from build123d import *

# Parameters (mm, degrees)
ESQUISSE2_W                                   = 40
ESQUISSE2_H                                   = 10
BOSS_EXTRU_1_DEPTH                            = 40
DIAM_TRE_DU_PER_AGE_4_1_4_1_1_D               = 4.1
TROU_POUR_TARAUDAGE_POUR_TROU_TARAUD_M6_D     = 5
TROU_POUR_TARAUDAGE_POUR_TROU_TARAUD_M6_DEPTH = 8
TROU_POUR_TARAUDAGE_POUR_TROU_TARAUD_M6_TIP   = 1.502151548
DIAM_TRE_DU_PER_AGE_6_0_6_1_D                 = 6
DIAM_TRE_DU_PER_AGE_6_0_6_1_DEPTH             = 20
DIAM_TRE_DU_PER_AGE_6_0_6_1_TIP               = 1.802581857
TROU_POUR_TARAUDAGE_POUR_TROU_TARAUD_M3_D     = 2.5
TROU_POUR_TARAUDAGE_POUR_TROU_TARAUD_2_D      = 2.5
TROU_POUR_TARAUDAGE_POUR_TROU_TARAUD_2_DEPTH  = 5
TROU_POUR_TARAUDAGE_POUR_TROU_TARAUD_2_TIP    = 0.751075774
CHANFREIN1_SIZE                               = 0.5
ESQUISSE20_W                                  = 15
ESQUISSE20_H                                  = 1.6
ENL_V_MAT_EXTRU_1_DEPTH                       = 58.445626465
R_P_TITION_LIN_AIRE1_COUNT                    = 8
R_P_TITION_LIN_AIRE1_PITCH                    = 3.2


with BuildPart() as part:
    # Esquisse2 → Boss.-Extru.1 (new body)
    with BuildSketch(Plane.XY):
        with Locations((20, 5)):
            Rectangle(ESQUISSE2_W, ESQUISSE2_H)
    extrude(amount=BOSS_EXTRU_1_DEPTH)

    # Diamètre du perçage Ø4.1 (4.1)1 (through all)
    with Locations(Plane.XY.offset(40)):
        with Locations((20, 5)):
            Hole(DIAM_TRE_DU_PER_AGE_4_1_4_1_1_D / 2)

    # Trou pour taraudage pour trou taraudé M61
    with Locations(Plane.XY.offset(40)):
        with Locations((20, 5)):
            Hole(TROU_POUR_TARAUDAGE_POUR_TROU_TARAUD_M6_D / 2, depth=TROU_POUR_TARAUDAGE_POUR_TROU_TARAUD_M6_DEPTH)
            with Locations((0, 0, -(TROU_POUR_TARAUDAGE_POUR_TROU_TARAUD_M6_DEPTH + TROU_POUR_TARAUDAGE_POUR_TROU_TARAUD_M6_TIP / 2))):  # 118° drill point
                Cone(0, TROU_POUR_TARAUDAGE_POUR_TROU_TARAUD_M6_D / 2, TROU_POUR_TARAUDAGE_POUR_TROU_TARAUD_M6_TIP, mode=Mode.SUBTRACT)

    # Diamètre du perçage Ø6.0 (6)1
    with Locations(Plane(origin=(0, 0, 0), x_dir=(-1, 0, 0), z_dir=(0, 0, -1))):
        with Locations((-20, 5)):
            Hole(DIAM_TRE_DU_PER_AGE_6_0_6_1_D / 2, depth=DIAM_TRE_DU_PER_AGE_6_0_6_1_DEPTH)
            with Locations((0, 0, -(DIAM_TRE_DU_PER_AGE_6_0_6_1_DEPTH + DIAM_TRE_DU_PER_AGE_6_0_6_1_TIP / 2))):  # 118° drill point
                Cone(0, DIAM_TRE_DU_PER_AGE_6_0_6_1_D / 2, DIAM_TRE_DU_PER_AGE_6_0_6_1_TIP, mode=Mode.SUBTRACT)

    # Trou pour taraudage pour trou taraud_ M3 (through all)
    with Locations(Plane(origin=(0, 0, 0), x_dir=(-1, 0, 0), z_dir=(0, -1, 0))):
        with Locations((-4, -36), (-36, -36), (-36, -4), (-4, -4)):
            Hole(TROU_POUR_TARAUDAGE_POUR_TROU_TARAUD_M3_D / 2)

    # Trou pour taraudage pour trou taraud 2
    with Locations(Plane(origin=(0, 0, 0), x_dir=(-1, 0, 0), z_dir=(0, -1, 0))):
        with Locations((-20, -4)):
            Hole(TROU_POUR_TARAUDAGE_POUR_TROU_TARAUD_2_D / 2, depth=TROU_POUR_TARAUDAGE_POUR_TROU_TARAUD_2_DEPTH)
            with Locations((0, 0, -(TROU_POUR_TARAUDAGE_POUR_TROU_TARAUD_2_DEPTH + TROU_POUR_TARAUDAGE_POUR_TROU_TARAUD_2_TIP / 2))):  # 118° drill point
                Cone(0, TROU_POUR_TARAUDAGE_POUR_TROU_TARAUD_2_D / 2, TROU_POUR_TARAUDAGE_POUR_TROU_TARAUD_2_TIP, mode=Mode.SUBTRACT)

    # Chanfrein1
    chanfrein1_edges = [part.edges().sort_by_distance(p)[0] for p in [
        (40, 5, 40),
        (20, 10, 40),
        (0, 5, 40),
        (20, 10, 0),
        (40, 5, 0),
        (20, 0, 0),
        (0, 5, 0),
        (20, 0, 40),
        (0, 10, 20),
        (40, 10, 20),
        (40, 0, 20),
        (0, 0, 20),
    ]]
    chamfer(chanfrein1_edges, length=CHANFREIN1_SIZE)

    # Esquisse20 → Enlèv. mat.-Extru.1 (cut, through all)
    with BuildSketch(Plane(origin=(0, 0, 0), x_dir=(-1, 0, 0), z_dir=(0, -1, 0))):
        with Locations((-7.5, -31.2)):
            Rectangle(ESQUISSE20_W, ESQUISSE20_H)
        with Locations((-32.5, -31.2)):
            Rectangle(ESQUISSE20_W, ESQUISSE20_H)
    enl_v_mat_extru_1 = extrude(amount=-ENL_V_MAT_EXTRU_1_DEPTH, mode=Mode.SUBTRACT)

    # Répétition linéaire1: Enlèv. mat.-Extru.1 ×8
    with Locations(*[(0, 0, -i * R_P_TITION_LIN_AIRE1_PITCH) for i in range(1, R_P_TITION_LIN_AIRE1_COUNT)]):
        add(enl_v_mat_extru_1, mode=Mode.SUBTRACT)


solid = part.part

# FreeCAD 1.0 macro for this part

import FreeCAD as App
import Part
import Sketcher
Q = App.Units.Quantity


def edges_at(feature, points):
    """Names of the edges that pass closest to the given points."""
    edges = feature.Shape.Edges
    near = lambda p: min(range(len(edges)), key=lambda i: edges[i].distToShape(Part.Vertex(*p))[0])
    return sorted({f"Edge{near(p) + 1}" for p in points})

doc = App.newDocument("Part")
body = doc.addObject("PartDesign::Body", "Body")

# Sketch on XY plane
sketch1 = body.newObject("Sketcher::SketchObject", "Sketch")
sketch1.AttachmentSupport = (doc.getObject("XY_Plane"), [""])
sketch1.MapMode = "FlatFace"
sketch1.addGeometry(Part.LineSegment(App.Vector(0, 10, 0), App.Vector(0, 0, 0)), False)
sketch1.addGeometry(Part.LineSegment(App.Vector(0, 0, 0), App.Vector(40, 0, 0)), False)
sketch1.addGeometry(Part.LineSegment(App.Vector(40, 0, 0), App.Vector(40, 10, 0)), False)
sketch1.addGeometry(Part.LineSegment(App.Vector(40, 10, 0), App.Vector(0, 10, 0)), False)
sketch1.addConstraint(Sketcher.Constraint("Coincident", 0, 2, 1, 1))
sketch1.addConstraint(Sketcher.Constraint("Coincident", 1, 2, 2, 1))
sketch1.addConstraint(Sketcher.Constraint("Coincident", 2, 2, 3, 1))
sketch1.addConstraint(Sketcher.Constraint("Coincident", 3, 2, 0, 1))
sketch1.addConstraint(Sketcher.Constraint("Vertical", 0))
sketch1.addConstraint(Sketcher.Constraint("Horizontal", 1))
sketch1.addConstraint(Sketcher.Constraint("Vertical", 2))
sketch1.addConstraint(Sketcher.Constraint("Horizontal", 3))
sketch1.addConstraint(Sketcher.Constraint("Coincident", 0, 2, -1, 1))
sketch1.addConstraint(Sketcher.Constraint("DistanceX", 1, 1, 1, 2, Q("40 mm")))
sketch1.addConstraint(Sketcher.Constraint("DistanceY", 0, 2, 0, 1, Q("10 mm")))
pad1 = body.newObject("PartDesign::Pad", "Pad")
pad1.Profile = sketch1
pad1.Length = 40

# Sketch on XY plane
sketch2 = body.newObject("Sketcher::SketchObject", "Sketch001")
sketch2.AttachmentSupport = (doc.getObject("XY_Plane"), [""])
sketch2.MapMode = "FlatFace"
sketch2.AttachmentOffset = App.Placement(App.Vector(0, 0, 40), App.Rotation())
sketch2.addGeometry(Part.Circle(App.Vector(20, 5, 0), App.Vector(0, 0, 1), 2.05), False)
sketch2.addConstraint(Sketcher.Constraint("Diameter", 0, Q("4.1 mm")))
sketch2.addConstraint(Sketcher.Constraint("DistanceX", -1, 1, 0, 3, Q("20 mm")))
sketch2.addConstraint(Sketcher.Constraint("DistanceY", -1, 1, 0, 3, Q("5 mm")))
doc.recompute()
hole = body.newObject("PartDesign::Hole", "Hole")
hole.Profile = sketch2
hole.ThreadType = "None"
hole.Diameter = 4.1
hole.DepthType = "ThroughAll"

# Sketch on XY plane
sketch3 = body.newObject("Sketcher::SketchObject", "Sketch002")
sketch3.AttachmentSupport = (doc.getObject("XY_Plane"), [""])
sketch3.MapMode = "FlatFace"
sketch3.AttachmentOffset = App.Placement(App.Vector(0, 0, 40), App.Rotation())
sketch3.addGeometry(Part.Circle(App.Vector(20, 5, 0), App.Vector(0, 0, 1), 2.5), False)
sketch3.addConstraint(Sketcher.Constraint("Diameter", 0, Q("5 mm")))
sketch3.addConstraint(Sketcher.Constraint("DistanceX", -1, 1, 0, 3, Q("20 mm")))
sketch3.addConstraint(Sketcher.Constraint("DistanceY", -1, 1, 0, 3, Q("5 mm")))
doc.recompute()
hole2 = body.newObject("PartDesign::Hole", "Hole001")
hole2.Profile = sketch3
hole2.ThreadType = "None"
hole2.Diameter = 5
hole2.DepthType = "Dimension"
hole2.Depth = 8
hole2.DrillPoint = "Angled"
hole2.DrillPointAngle = 118

# Sketch on XY plane
sketch4 = body.newObject("Sketcher::SketchObject", "Sketch003")
sketch4.AttachmentSupport = (doc.getObject("XY_Plane"), [""])
sketch4.MapMode = "FlatFace"
sketch4.addGeometry(Part.Circle(App.Vector(20, 5, 0), App.Vector(0, 0, 1), 3), False)
sketch4.addConstraint(Sketcher.Constraint("Diameter", 0, Q("6 mm")))
sketch4.addConstraint(Sketcher.Constraint("DistanceX", -1, 1, 0, 3, Q("20 mm")))
sketch4.addConstraint(Sketcher.Constraint("DistanceY", -1, 1, 0, 3, Q("5 mm")))
doc.recompute()
hole3 = body.newObject("PartDesign::Hole", "Hole002")
hole3.Profile = sketch4
hole3.ThreadType = "None"
hole3.Diameter = 6
hole3.DepthType = "Dimension"
hole3.Depth = 20
hole3.DrillPoint = "Angled"
hole3.DrillPointAngle = 118
hole3.Reversed = True

# Sketch on XZ plane
sketch5 = body.newObject("Sketcher::SketchObject", "Sketch004")
sketch5.AttachmentSupport = (doc.getObject("XZ_Plane"), [""])
sketch5.MapMode = "FlatFace"
sketch5.addGeometry(Part.Circle(App.Vector(4, 36, 0), App.Vector(0, 0, 1), 1.25), False)
sketch5.addGeometry(Part.Circle(App.Vector(36, 36, 0), App.Vector(0, 0, 1), 1.25), False)
sketch5.addGeometry(Part.Circle(App.Vector(36, 4, 0), App.Vector(0, 0, 1), 1.25), False)
sketch5.addGeometry(Part.Circle(App.Vector(4, 4, 0), App.Vector(0, 0, 1), 1.25), False)
sketch5.addConstraint(Sketcher.Constraint("Equal", 0, 1))
sketch5.addConstraint(Sketcher.Constraint("Equal", 1, 2))
sketch5.addConstraint(Sketcher.Constraint("Equal", 2, 3))
sketch5.addConstraint(Sketcher.Constraint("Horizontal", 0, 3, 1, 3))
sketch5.addConstraint(Sketcher.Constraint("Horizontal", 2, 3, 3, 3))
sketch5.addConstraint(Sketcher.Constraint("Vertical", 1, 3, 2, 3))
sketch5.addConstraint(Sketcher.Constraint("Vertical", 0, 3, 3, 3))
sketch5.addConstraint(Sketcher.Constraint("Diameter", 0, Q("2.5 mm")))
sketch5.addConstraint(Sketcher.Constraint("DistanceX", -1, 1, 0, 3, Q("4 mm")))
sketch5.addConstraint(Sketcher.Constraint("DistanceY", -1, 1, 0, 3, Q("36 mm")))
sketch5.addConstraint(Sketcher.Constraint("DistanceX", -1, 1, 1, 3, Q("36 mm")))
sketch5.addConstraint(Sketcher.Constraint("DistanceY", -1, 1, 2, 3, Q("4 mm")))
doc.recompute()
hole4 = body.newObject("PartDesign::Hole", "Hole003")
hole4.Profile = sketch5
hole4.ThreadType = "None"
hole4.Diameter = 2.5
hole4.DepthType = "ThroughAll"

# Sketch on XZ plane
sketch6 = body.newObject("Sketcher::SketchObject", "Sketch005")
sketch6.AttachmentSupport = (doc.getObject("XZ_Plane"), [""])
sketch6.MapMode = "FlatFace"
sketch6.addGeometry(Part.Circle(App.Vector(20, 4, 0), App.Vector(0, 0, 1), 1.25), False)
sketch6.addConstraint(Sketcher.Constraint("Diameter", 0, Q("2.5 mm")))
sketch6.addConstraint(Sketcher.Constraint("DistanceX", -1, 1, 0, 3, Q("20 mm")))
sketch6.addConstraint(Sketcher.Constraint("DistanceY", -1, 1, 0, 3, Q("4 mm")))
doc.recompute()
hole5 = body.newObject("PartDesign::Hole", "Hole004")
hole5.Profile = sketch6
hole5.ThreadType = "None"
hole5.Diameter = 2.5
hole5.DepthType = "Dimension"
hole5.Depth = 5
hole5.DrillPoint = "Angled"
hole5.DrillPointAngle = 118
doc.recompute()

chamfer = body.newObject("PartDesign::Chamfer", "Chamfer")
chamfer.Base = (hole5, edges_at(hole5, [
    (40, 5, 40),
    (20, 10, 40),
    (0, 5, 40),
    (20, 10, 0),
    (40, 5, 0),
    (20, 0, 0),
    (0, 5, 0),
    (20, 0, 40),
    (0, 10, 20),
    (40, 10, 20),
    (40, 0, 20),
    (0, 0, 20),
]))
chamfer.Size = 0.5

# Sketch on XZ plane
sketch7 = body.newObject("Sketcher::SketchObject", "Sketch006")
sketch7.AttachmentSupport = (doc.getObject("XZ_Plane"), [""])
sketch7.MapMode = "FlatFace"
sketch7.addGeometry(Part.LineSegment(App.Vector(15, 30.4, 0), App.Vector(15, 32, 0)), False)
sketch7.addGeometry(Part.LineSegment(App.Vector(15, 32, 0), App.Vector(0, 32, 0)), False)
sketch7.addGeometry(Part.LineSegment(App.Vector(0, 32, 0), App.Vector(0, 30.4, 0)), False)
sketch7.addGeometry(Part.LineSegment(App.Vector(0, 30.4, 0), App.Vector(15, 30.4, 0)), False)
sketch7.addGeometry(Part.LineSegment(App.Vector(40, 30.4, 0), App.Vector(40, 32, 0)), False)
sketch7.addGeometry(Part.LineSegment(App.Vector(40, 32, 0), App.Vector(25, 32, 0)), False)
sketch7.addGeometry(Part.LineSegment(App.Vector(25, 32, 0), App.Vector(25, 30.4, 0)), False)
sketch7.addGeometry(Part.LineSegment(App.Vector(25, 30.4, 0), App.Vector(40, 30.4, 0)), False)
sketch7.addConstraint(Sketcher.Constraint("Coincident", 0, 2, 1, 1))
sketch7.addConstraint(Sketcher.Constraint("Coincident", 1, 2, 2, 1))
sketch7.addConstraint(Sketcher.Constraint("Coincident", 2, 2, 3, 1))
sketch7.addConstraint(Sketcher.Constraint("Coincident", 3, 2, 0, 1))
sketch7.addConstraint(Sketcher.Constraint("Coincident", 4, 2, 5, 1))
sketch7.addConstraint(Sketcher.Constraint("Coincident", 5, 2, 6, 1))
sketch7.addConstraint(Sketcher.Constraint("Coincident", 6, 2, 7, 1))
sketch7.addConstraint(Sketcher.Constraint("Coincident", 7, 2, 4, 1))
sketch7.addConstraint(Sketcher.Constraint("Vertical", 0))
sketch7.addConstraint(Sketcher.Constraint("Horizontal", 1))
sketch7.addConstraint(Sketcher.Constraint("Vertical", 2))
sketch7.addConstraint(Sketcher.Constraint("Horizontal", 3))
sketch7.addConstraint(Sketcher.Constraint("Vertical", 4))
sketch7.addConstraint(Sketcher.Constraint("Horizontal", 5))
sketch7.addConstraint(Sketcher.Constraint("Vertical", 6))
sketch7.addConstraint(Sketcher.Constraint("Horizontal", 7))
sketch7.addConstraint(Sketcher.Constraint("PointOnObject", 1, 2, -2))
sketch7.addConstraint(Sketcher.Constraint("Horizontal", 1, 2, 4, 2))
sketch7.addConstraint(Sketcher.Constraint("Horizontal", 3, 2, 6, 2))
sketch7.addConstraint(Sketcher.Constraint("Equal", 3, 5))
sketch7.addConstraint(Sketcher.Constraint("DistanceX", 1, 2, 1, 1, Q("15 mm")))
sketch7.addConstraint(Sketcher.Constraint("DistanceY", 0, 1, 0, 2, Q("1.6 mm")))
sketch7.addConstraint(Sketcher.Constraint("DistanceY", -1, 1, 0, 2, Q("32 mm")))
sketch7.addConstraint(Sketcher.Constraint("DistanceX", -1, 1, 4, 2, Q("40 mm")))
pocket1 = body.newObject("PartDesign::Pocket", "Pocket")
pocket1.Profile = sketch7
pocket1.Type = "ThroughAll"
doc.recompute()

linearpattern = body.newObject("PartDesign::LinearPattern", "LinearPattern")
linearpattern.Originals = [pocket1]
linearpattern.Direction = (doc.getObject("Z_Axis"), [""])
linearpattern.Mode = "offset"
linearpattern.Offset = 3.2
linearpattern.Occurrences = 8
linearpattern.Reversed = True
body.Tip = linearpattern

doc.recompute()
